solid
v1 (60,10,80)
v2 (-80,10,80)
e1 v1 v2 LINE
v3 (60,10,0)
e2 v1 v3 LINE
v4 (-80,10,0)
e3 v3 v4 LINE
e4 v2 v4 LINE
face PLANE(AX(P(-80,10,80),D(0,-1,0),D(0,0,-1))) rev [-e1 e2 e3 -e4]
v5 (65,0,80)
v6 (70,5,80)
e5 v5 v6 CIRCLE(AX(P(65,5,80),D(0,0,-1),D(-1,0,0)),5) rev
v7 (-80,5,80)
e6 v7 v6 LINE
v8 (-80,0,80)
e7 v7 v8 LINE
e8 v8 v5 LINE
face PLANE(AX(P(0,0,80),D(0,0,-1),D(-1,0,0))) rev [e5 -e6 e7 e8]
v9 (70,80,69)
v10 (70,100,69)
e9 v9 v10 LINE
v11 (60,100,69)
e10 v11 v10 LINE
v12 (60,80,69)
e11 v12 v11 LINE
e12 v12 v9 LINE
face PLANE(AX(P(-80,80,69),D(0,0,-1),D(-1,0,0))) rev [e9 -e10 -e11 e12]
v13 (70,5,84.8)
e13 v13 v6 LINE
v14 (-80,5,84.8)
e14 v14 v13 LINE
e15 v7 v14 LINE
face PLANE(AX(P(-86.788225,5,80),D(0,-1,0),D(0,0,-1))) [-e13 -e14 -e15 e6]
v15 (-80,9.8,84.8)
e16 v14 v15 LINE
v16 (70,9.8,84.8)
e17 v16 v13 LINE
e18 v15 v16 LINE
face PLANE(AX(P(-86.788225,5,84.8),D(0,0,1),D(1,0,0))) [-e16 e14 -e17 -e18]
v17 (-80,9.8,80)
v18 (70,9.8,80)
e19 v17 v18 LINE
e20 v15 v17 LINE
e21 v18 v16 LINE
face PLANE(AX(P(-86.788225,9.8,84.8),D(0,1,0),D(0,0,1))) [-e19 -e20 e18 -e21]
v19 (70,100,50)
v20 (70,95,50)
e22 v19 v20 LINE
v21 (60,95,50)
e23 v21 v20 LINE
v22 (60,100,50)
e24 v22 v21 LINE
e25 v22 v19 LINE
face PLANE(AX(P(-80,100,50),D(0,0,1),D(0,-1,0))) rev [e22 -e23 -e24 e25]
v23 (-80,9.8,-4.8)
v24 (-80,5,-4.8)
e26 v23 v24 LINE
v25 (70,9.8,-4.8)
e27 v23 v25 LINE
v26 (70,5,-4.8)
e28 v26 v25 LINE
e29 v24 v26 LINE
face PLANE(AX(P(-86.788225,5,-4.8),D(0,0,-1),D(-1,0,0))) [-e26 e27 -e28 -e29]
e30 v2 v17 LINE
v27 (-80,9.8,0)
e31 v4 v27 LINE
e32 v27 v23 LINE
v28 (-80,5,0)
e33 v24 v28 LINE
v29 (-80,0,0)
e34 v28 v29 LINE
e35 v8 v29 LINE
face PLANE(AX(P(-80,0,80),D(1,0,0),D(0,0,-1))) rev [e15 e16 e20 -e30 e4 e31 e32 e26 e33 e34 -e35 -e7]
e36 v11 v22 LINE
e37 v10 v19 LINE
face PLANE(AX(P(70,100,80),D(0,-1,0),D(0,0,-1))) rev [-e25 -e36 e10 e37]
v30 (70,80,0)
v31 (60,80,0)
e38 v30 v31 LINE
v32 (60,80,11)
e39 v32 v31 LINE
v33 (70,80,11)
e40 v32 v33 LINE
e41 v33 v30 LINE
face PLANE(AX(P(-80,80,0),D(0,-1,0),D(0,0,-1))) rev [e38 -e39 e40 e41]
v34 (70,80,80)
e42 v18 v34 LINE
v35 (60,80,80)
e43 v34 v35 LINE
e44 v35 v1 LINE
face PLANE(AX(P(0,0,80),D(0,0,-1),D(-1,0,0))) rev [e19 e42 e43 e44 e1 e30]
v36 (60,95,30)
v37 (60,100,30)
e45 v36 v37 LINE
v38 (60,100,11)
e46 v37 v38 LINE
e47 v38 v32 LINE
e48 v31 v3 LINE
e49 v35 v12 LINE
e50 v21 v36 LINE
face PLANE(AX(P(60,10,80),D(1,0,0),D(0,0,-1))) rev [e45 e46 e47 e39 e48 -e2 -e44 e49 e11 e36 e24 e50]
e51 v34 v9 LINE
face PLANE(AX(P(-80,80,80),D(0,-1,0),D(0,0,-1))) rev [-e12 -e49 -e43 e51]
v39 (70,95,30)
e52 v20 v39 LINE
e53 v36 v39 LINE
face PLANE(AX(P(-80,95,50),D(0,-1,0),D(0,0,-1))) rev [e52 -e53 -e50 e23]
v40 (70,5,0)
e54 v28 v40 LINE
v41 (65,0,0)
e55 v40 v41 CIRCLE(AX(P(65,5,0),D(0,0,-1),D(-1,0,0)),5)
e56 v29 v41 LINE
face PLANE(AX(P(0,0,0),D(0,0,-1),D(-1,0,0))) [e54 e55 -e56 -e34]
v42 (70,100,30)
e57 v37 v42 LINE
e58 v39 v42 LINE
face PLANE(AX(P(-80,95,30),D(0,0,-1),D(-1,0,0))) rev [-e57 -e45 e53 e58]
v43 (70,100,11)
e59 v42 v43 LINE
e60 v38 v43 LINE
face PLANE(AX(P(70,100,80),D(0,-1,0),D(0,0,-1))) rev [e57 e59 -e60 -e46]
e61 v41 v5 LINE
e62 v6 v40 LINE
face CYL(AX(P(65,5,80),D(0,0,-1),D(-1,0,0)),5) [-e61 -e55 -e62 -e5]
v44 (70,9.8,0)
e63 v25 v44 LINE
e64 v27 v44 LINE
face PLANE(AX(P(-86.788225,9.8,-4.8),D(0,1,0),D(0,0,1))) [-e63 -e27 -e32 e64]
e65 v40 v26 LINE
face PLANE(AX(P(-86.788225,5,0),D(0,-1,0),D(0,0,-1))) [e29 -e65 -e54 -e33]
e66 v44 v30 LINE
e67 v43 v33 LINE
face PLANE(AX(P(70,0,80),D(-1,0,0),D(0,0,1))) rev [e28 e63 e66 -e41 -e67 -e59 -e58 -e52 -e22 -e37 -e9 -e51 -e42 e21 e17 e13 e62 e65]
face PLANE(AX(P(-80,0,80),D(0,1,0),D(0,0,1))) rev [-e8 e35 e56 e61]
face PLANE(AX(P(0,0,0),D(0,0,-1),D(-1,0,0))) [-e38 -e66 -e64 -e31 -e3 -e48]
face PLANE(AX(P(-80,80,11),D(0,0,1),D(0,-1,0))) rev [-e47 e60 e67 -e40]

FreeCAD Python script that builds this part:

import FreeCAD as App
import Part
import Sketcher


def edges_at(feature, points):
    """Names of the edges that pass closest to the given points."""
    edges = feature.Shape.Edges
    near = lambda p: min(range(len(edges)), key=lambda i: edges[i].distToShape(Part.Vertex(*p))[0])
    return sorted({f"Edge{near(p) + 1}" for p in points})

doc = App.newDocument("Part")
body = doc.addObject("PartDesign::Body", "Body")

# Sketch on XY plane
sketch1 = doc.addObject("Sketcher::SketchObject", "Sketch")
body.addObject(sketch1)
sketch1.AttachmentSupport = (doc.XY_Plane, [""])
sketch1.MapMode = "FlatFace"
sketch1.addGeometry(Part.LineSegment(App.Vector(-80, 0, 0), App.Vector(70, 0, 0)), False)
sketch1.addGeometry(Part.LineSegment(App.Vector(70, 0, 0), App.Vector(70, 100, 0)), False)
sketch1.addGeometry(Part.LineSegment(App.Vector(70, 100, 0), App.Vector(60, 100, 0)), False)
sketch1.addGeometry(Part.LineSegment(App.Vector(60, 100, 0), App.Vector(60, 10, 0)), False)
sketch1.addGeometry(Part.LineSegment(App.Vector(60, 10, 0), App.Vector(-80, 10, 0)), False)
sketch1.addGeometry(Part.LineSegment(App.Vector(-80, 10, 0), App.Vector(-80, 0, 0)), False)
sketch1.addConstraint(Sketcher.Constraint("Coincident", 0, 2, 1, 1))
sketch1.addConstraint(Sketcher.Constraint("Coincident", 1, 2, 2, 1))
sketch1.addConstraint(Sketcher.Constraint("Coincident", 2, 2, 3, 1))
sketch1.addConstraint(Sketcher.Constraint("Coincident", 3, 2, 4, 1))
sketch1.addConstraint(Sketcher.Constraint("Coincident", 4, 2, 5, 1))
sketch1.addConstraint(Sketcher.Constraint("Coincident", 5, 2, 0, 1))
sketch1.addConstraint(Sketcher.Constraint("Horizontal", 0))
sketch1.addConstraint(Sketcher.Constraint("Vertical", 1))
sketch1.addConstraint(Sketcher.Constraint("Horizontal", 2))
sketch1.addConstraint(Sketcher.Constraint("Vertical", 3))
sketch1.addConstraint(Sketcher.Constraint("Horizontal", 4))
sketch1.addConstraint(Sketcher.Constraint("Vertical", 5))
sketch1.addConstraint(Sketcher.Constraint("PointOnObject", 0, 2, -1))
sketch1.addConstraint(Sketcher.Constraint("Equal", 2, 5))
sketch1.addConstraint(Sketcher.Constraint("DistanceX", 0, 1, 0, 2, 150.0))
sketch1.addConstraint(Sketcher.Constraint("DistanceX", 2, 2, 2, 1, 10.0))
sketch1.addConstraint(Sketcher.Constraint("DistanceY", 1, 1, 1, 2, 100.0))
sketch1.addConstraint(Sketcher.Constraint("DistanceX", -1, 1, 0, 2, 70.0))
pad1 = doc.addObject("PartDesign::Pad", "Pad")
body.addObject(pad1)
pad1.Profile = sketch1
pad1.Length = 80

# Sketch on YZ plane
sketch2 = doc.addObject("Sketcher::SketchObject", "Sketch001")
body.addObject(sketch2)
sketch2.AttachmentSupport = (doc.YZ_Plane, [""])
sketch2.MapMode = "FlatFace"
sketch2.AttachmentOffset = App.Placement(App.Vector(0, 0, 70), App.Rotation())
sketch2.addGeometry(Part.LineSegment(App.Vector(9.8, 84.8, 0), App.Vector(5, 84.8, 0)), False)
sketch2.addGeometry(Part.LineSegment(App.Vector(5, 84.8, 0), App.Vector(5, 80, 0)), False)
sketch2.addGeometry(Part.LineSegment(App.Vector(5, 80, 0), App.Vector(9.8, 80, 0)), False)
sketch2.addGeometry(Part.LineSegment(App.Vector(9.8, 80, 0), App.Vector(9.8, 84.8, 0)), False)
sketch2.addGeometry(Part.LineSegment(App.Vector(9.8, 0, 0), App.Vector(5, 0, 0)), False)
sketch2.addGeometry(Part.LineSegment(App.Vector(5, 0, 0), App.Vector(5, -4.8, 0)), False)
sketch2.addGeometry(Part.LineSegment(App.Vector(5, -4.8, 0), App.Vector(9.8, -4.8, 0)), False)
sketch2.addGeometry(Part.LineSegment(App.Vector(9.8, -4.8, 0), App.Vector(9.8, 0, 0)), False)
sketch2.addConstraint(Sketcher.Constraint("Coincident", 0, 2, 1, 1))
sketch2.addConstraint(Sketcher.Constraint("Coincident", 1, 2, 2, 1))
sketch2.addConstraint(Sketcher.Constraint("Coincident", 2, 2, 3, 1))
sketch2.addConstraint(Sketcher.Constraint("Coincident", 3, 2, 0, 1))
sketch2.addConstraint(Sketcher.Constraint("Coincident", 4, 2, 5, 1))
sketch2.addConstraint(Sketcher.Constraint("Coincident", 5, 2, 6, 1))
sketch2.addConstraint(Sketcher.Constraint("Coincident", 6, 2, 7, 1))
sketch2.addConstraint(Sketcher.Constraint("Coincident", 7, 2, 4, 1))
sketch2.addConstraint(Sketcher.Constraint("Horizontal", 0))
sketch2.addConstraint(Sketcher.Constraint("Vertical", 1))
sketch2.addConstraint(Sketcher.Constraint("Horizontal", 2))
sketch2.addConstraint(Sketcher.Constraint("Vertical", 3))
sketch2.addConstraint(Sketcher.Constraint("Horizontal", 4))
sketch2.addConstraint(Sketcher.Constraint("Vertical", 5))
sketch2.addConstraint(Sketcher.Constraint("Horizontal", 6))
sketch2.addConstraint(Sketcher.Constraint("Vertical", 7))
sketch2.addConstraint(Sketcher.Constraint("PointOnObject", 4, 2, -1))
sketch2.addConstraint(Sketcher.Constraint("Vertical", 1, 2, 4, 2))
sketch2.addConstraint(Sketcher.Constraint("Vertical", 3, 2, 6, 2))
sketch2.addConstraint(Sketcher.Constraint("Equal", 6, 1))
sketch2.addConstraint(Sketcher.Constraint("Equal", 3, 5))
sketch2.addConstraint(Sketcher.Constraint("DistanceX", 0, 2, 0, 1, 4.8))
sketch2.addConstraint(Sketcher.Constraint("DistanceX", -1, 1, 0, 2, 5.0))
sketch2.addConstraint(Sketcher.Constraint("DistanceY", -1, 1, 1, 2, 80.0))
pad2 = doc.addObject("PartDesign::Pad", "Pad001")
body.addObject(pad2)
pad2.Profile = sketch2
pad2.Length = 150
pad2.Reversed = True

# Sketch on YZ plane
sketch3 = doc.addObject("Sketcher::SketchObject", "Sketch002")
body.addObject(sketch3)
sketch3.AttachmentSupport = (doc.YZ_Plane, [""])
sketch3.MapMode = "FlatFace"
sketch3.AttachmentOffset = App.Placement(App.Vector(0, 0, 70), App.Rotation())
sketch3.addGeometry(Part.LineSegment(App.Vector(100, 50, 0), App.Vector(95, 50, 0)), False)
sketch3.addGeometry(Part.LineSegment(App.Vector(95, 50, 0), App.Vector(95, 30, 0)), False)
sketch3.addGeometry(Part.LineSegment(App.Vector(95, 30, 0), App.Vector(100, 30, 0)), False)
sketch3.addGeometry(Part.LineSegment(App.Vector(100, 30, 0), App.Vector(100, 50, 0)), False)
sketch3.addGeometry(Part.LineSegment(App.Vector(100, 80, 0), App.Vector(80, 80, 0)), False)
sketch3.addGeometry(Part.LineSegment(App.Vector(80, 80, 0), App.Vector(80, 69, 0)), False)
sketch3.addGeometry(Part.LineSegment(App.Vector(80, 69, 0), App.Vector(100, 69, 0)), False)
sketch3.addGeometry(Part.LineSegment(App.Vector(100, 69, 0), App.Vector(100, 80, 0)), False)
sketch3.addGeometry(Part.LineSegment(App.Vector(100, 11, 0), App.Vector(80, 11, 0)), False)
sketch3.addGeometry(Part.LineSegment(App.Vector(80, 11, 0), App.Vector(80, 0, 0)), False)
sketch3.addGeometry(Part.LineSegment(App.Vector(80, 0, 0), App.Vector(100, 0, 0)), False)
sketch3.addGeometry(Part.LineSegment(App.Vector(100, 0, 0), App.Vector(100, 11, 0)), False)
sketch3.addConstraint(Sketcher.Constraint("Coincident", 0, 2, 1, 1))
sketch3.addConstraint(Sketcher.Constraint("Coincident", 1, 2, 2, 1))
sketch3.addConstraint(Sketcher.Constraint("Coincident", 2, 2, 3, 1))
sketch3.addConstraint(Sketcher.Constraint("Coincident", 3, 2, 0, 1))
sketch3.addConstraint(Sketcher.Constraint("Coincident", 4, 2, 5, 1))
sketch3.addConstraint(Sketcher.Constraint("Coincident", 5, 2, 6, 1))
sketch3.addConstraint(Sketcher.Constraint("Coincident", 6, 2, 7, 1))
sketch3.addConstraint(Sketcher.Constraint("Coincident", 7, 2, 4, 1))
sketch3.addConstraint(Sketcher.Constraint("Coincident", 8, 2, 9, 1))
sketch3.addConstraint(Sketcher.Constraint("Coincident", 9, 2, 10, 1))
sketch3.addConstraint(Sketcher.Constraint("Coincident", 10, 2, 11, 1))
sketch3.addConstraint(Sketcher.Constraint("Coincident", 11, 2, 8, 1))
sketch3.addConstraint(Sketcher.Constraint("Horizontal", 0))
sketch3.addConstraint(Sketcher.Constraint("Vertical", 1))
sketch3.addConstraint(Sketcher.Constraint("Horizontal", 2))
sketch3.addConstraint(Sketcher.Constraint("Vertical", 3))
sketch3.addConstraint(Sketcher.Constraint("Horizontal", 4))
sketch3.addConstraint(Sketcher.Constraint("Vertical", 5))
sketch3.addConstraint(Sketcher.Constraint("Horizontal", 6))
sketch3.addConstraint(Sketcher.Constraint("Vertical", 7))
sketch3.addConstraint(Sketcher.Constraint("Horizontal", 8))
sketch3.addConstraint(Sketcher.Constraint("Vertical", 9))
sketch3.addConstraint(Sketcher.Constraint("Horizontal", 10))
sketch3.addConstraint(Sketcher.Constraint("Vertical", 11))
sketch3.addConstraint(Sketcher.Constraint("PointOnObject", 9, 2, -1))
sketch3.addConstraint(Sketcher.Constraint("Vertical", 3, 2, 6, 2))
sketch3.addConstraint(Sketcher.Constraint("Vertical", 5, 2, 8, 2))
sketch3.addConstraint(Sketcher.Constraint("Vertical", 7, 2, 10, 2))
sketch3.addConstraint(Sketcher.Constraint("Equal", 10, 1))
sketch3.addConstraint(Sketcher.Constraint("Equal", 7, 9))
sketch3.addConstraint(Sketcher.Constraint("DistanceX", 0, 2, 0, 1, 5.0))
sketch3.addConstraint(Sketcher.Constraint("DistanceX", 4, 2, 4, 1, 20.0))
sketch3.addConstraint(Sketcher.Constraint("DistanceY", 5, 2, 5, 1, 11.0))
sketch3.addConstraint(Sketcher.Constraint("DistanceX", -1, 1, 0, 2, 95.0))
sketch3.addConstraint(Sketcher.Constraint("DistanceY", -1, 1, 0, 2, 50.0))
sketch3.addConstraint(Sketcher.Constraint("DistanceY", -1, 1, 4, 2, 80.0))
pocket1 = doc.addObject("PartDesign::Pocket", "Pocket")
body.addObject(pocket1)
pocket1.Profile = sketch3
pocket1.Type = "ThroughAll"
doc.recompute()

fillet = doc.addObject("PartDesign::Fillet", "Fillet")
body.addObject(fillet)
fillet.Base = (pocket1, edges_at(pocket1, [(70, 0, 40)]))
fillet.Radius = 5

doc.recompute()
